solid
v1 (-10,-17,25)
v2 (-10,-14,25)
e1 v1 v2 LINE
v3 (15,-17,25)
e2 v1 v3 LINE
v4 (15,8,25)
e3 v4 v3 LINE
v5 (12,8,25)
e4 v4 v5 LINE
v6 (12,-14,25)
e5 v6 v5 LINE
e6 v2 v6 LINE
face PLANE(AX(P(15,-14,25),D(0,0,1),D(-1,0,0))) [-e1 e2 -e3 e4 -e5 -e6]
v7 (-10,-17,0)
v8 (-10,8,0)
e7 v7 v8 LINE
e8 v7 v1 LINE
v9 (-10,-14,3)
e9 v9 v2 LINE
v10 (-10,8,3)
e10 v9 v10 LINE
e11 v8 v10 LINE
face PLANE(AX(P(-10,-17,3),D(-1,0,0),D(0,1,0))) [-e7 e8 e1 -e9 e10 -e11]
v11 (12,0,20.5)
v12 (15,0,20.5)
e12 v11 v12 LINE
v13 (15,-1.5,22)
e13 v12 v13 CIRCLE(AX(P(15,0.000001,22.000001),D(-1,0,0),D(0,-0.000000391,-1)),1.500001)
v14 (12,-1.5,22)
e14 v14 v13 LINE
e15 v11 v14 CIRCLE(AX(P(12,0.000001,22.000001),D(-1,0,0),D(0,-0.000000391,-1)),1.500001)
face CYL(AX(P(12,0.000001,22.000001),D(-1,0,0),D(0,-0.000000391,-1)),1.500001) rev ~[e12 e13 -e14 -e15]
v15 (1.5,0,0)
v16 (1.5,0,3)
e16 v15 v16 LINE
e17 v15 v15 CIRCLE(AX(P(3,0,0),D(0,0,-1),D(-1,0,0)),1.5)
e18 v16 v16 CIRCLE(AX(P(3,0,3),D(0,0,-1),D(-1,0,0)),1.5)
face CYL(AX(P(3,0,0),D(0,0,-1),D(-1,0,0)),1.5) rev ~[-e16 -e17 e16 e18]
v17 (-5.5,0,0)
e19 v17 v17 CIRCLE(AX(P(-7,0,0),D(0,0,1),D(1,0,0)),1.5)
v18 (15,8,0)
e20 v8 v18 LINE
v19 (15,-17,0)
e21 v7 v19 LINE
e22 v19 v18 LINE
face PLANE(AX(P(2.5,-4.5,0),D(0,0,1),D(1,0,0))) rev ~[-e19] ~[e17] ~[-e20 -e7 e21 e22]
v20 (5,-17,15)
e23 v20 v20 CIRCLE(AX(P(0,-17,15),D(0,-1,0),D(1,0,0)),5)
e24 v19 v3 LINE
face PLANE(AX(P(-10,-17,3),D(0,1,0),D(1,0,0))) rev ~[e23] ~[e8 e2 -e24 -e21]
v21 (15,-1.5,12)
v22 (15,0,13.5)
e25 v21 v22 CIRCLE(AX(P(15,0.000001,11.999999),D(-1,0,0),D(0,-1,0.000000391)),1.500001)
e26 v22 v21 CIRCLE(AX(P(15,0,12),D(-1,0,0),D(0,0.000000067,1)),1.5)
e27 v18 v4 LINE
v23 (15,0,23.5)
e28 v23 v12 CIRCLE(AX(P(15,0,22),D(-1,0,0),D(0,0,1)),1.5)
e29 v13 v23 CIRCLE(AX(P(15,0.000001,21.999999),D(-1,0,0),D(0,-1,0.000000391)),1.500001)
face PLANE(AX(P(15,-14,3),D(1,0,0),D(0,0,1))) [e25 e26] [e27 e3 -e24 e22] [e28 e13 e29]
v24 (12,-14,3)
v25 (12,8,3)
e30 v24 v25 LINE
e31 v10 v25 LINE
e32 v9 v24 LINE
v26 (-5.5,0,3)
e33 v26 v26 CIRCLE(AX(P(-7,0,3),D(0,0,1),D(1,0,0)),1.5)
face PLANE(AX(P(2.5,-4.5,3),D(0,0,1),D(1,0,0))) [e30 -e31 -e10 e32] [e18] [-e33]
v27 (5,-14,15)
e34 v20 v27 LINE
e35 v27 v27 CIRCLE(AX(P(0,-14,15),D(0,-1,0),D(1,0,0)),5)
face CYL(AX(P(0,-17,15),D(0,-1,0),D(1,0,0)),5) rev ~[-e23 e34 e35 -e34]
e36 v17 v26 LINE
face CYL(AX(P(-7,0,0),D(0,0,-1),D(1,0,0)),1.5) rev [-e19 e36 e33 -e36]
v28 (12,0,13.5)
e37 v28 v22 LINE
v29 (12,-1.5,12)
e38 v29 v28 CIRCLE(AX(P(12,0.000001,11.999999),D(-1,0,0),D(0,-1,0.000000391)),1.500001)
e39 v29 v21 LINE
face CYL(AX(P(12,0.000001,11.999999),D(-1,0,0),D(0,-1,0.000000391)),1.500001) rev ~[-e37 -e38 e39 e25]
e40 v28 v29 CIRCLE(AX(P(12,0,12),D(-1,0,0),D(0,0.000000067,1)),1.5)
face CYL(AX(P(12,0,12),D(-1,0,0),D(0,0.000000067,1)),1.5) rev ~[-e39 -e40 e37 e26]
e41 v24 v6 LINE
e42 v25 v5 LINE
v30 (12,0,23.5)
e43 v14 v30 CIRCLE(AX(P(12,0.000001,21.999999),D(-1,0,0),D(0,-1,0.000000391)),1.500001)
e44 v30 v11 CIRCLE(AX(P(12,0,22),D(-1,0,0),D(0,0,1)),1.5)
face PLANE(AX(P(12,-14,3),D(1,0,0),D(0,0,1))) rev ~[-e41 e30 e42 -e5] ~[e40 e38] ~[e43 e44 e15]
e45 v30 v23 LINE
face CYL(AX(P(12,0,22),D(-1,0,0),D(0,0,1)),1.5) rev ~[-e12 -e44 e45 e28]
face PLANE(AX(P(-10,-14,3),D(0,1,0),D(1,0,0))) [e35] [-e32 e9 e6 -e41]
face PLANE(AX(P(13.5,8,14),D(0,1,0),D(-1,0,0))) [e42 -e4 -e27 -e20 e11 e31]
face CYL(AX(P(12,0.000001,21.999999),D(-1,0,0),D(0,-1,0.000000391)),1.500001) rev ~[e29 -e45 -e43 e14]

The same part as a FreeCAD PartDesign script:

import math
import FreeCAD as App
import Part
import Sketcher
from FreeCAD import Vector

doc = App.newDocument("Part")
body = doc.addObject("PartDesign::Body", "Body")

# Sketch on XY plane
sketch1 = body.newObject("Sketcher::SketchObject", "Sketch")
sketch1.AttachmentSupport = (doc.getObject("XY_Plane"), [""])
sketch1.MapMode = "FlatFace"
sketch1.addGeometry(Part.LineSegment(Vector(-10, 8, 0), Vector(-10, -17, 0)), False)
sketch1.addGeometry(Part.LineSegment(Vector(-10, -17, 0), Vector(15, -17, 0)), False)
sketch1.addGeometry(Part.LineSegment(Vector(15, -17, 0), Vector(15, 8, 0)), False)
sketch1.addGeometry(Part.LineSegment(Vector(15, 8, 0), Vector(-10, 8, 0)), False)
sketch1.addGeometry(Part.Circle(Vector(-7, 0, 0), Vector(0, 0, 1), 1.5), False)
sketch1.addGeometry(Part.Circle(Vector(3, 0, 0), Vector(0, 0, 1), 1.5), False)
sketch1.addConstraint(Sketcher.Constraint("Coincident", 0, 2, 1, 1))
sketch1.addConstraint(Sketcher.Constraint("Coincident", 1, 2, 2, 1))
sketch1.addConstraint(Sketcher.Constraint("Coincident", 2, 2, 3, 1))
sketch1.addConstraint(Sketcher.Constraint("Coincident", 3, 2, 0, 1))
sketch1.addConstraint(Sketcher.Constraint("Vertical", 0))
sketch1.addConstraint(Sketcher.Constraint("Horizontal", 1))
sketch1.addConstraint(Sketcher.Constraint("Vertical", 2))
sketch1.addConstraint(Sketcher.Constraint("Horizontal", 3))
sketch1.addConstraint(Sketcher.Constraint("Equal", 4, 5))
sketch1.addConstraint(Sketcher.Constraint("PointOnObject", 4, 3, -1))
sketch1.addConstraint(Sketcher.Constraint("PointOnObject", 5, 3, -1))
sketch1.addConstraint(Sketcher.Constraint("Equal", 3, 0))
sketch1.addConstraint(Sketcher.Constraint("Diameter", 4, 3.0))
sketch1.addConstraint(Sketcher.Constraint("DistanceX", 1, 1, 1, 2, 25.0))
sketch1.addConstraint(Sketcher.Constraint("DistanceX", 4, 3, -1, 1, 7.0))
sketch1.addConstraint(Sketcher.Constraint("DistanceX", -1, 1, 5, 3, 3.0))
sketch1.addConstraint(Sketcher.Constraint("DistanceX", 0, 2, -1, 1, 10.0))
sketch1.addConstraint(Sketcher.Constraint("DistanceY", 0, 2, -1, 1, 17.0))
pad1 = body.newObject("PartDesign::Pad", "Pad")
pad1.Profile = sketch1
pad1.Length = 3

# Sketch on XY plane
sketch2 = body.newObject("Sketcher::SketchObject", "Sketch001")
sketch2.AttachmentSupport = (doc.getObject("XY_Plane"), [""])
sketch2.MapMode = "FlatFace"
sketch2.addGeometry(Part.LineSegment(Vector(-10, 8, 0), Vector(-10, -17, 0)), False)
sketch2.addGeometry(Part.LineSegment(Vector(-10, -17, 0), Vector(15, -17, 0)), False)
sketch2.addGeometry(Part.LineSegment(Vector(15, -17, 0), Vector(15, 8, 0)), False)
sketch2.addGeometry(Part.LineSegment(Vector(15, 8, 0), Vector(-10, 8, 0)), False)
sketch2.addGeometry(Part.Circle(Vector(-7, 0, 0), Vector(0, 0, 1), 1.5), False)
sketch2.addGeometry(Part.Circle(Vector(3, 0, 0), Vector(0, 0, 1), 1.5), False)
sketch2.addConstraint(Sketcher.Constraint("Coincident", 0, 2, 1, 1))
sketch2.addConstraint(Sketcher.Constraint("Coincident", 1, 2, 2, 1))
sketch2.addConstraint(Sketcher.Constraint("Coincident", 2, 2, 3, 1))
sketch2.addConstraint(Sketcher.Constraint("Coincident", 3, 2, 0, 1))
sketch2.addConstraint(Sketcher.Constraint("Vertical", 0))
sketch2.addConstraint(Sketcher.Constraint("Horizontal", 1))
sketch2.addConstraint(Sketcher.Constraint("Vertical", 2))
sketch2.addConstraint(Sketcher.Constraint("Horizontal", 3))
sketch2.addConstraint(Sketcher.Constraint("Equal", 4, 5))
sketch2.addConstraint(Sketcher.Constraint("PointOnObject", 4, 3, -1))
sketch2.addConstraint(Sketcher.Constraint("PointOnObject", 5, 3, -1))
sketch2.addConstraint(Sketcher.Constraint("Equal", 3, 0))
sketch2.addConstraint(Sketcher.Constraint("Diameter", 4, 3.0))
sketch2.addConstraint(Sketcher.Constraint("DistanceX", 1, 1, 1, 2, 25.0))
sketch2.addConstraint(Sketcher.Constraint("DistanceX", 4, 3, -1, 1, 7.0))
sketch2.addConstraint(Sketcher.Constraint("DistanceX", -1, 1, 5, 3, 3.0))
sketch2.addConstraint(Sketcher.Constraint("DistanceX", 0, 2, -1, 1, 10.0))
sketch2.addConstraint(Sketcher.Constraint("DistanceY", 0, 2, -1, 1, 17.0))
pad2 = body.newObject("PartDesign::Pad", "Pad001")
pad2.Profile = sketch2
pad2.Length = 3

# Sketch on XY plane
sketch3 = body.newObject("Sketcher::SketchObject", "Sketch002")
sketch3.AttachmentSupport = (doc.getObject("XY_Plane"), [""])
sketch3.MapMode = "FlatFace"
sketch3.AttachmentOffset = App.Placement(Vector(0, 0, 3), App.Rotation())
sketch3.addGeometry(Part.LineSegment(Vector(-10, -14, 0), Vector(-10, -17, 0)), False)
sketch3.addGeometry(Part.LineSegment(Vector(-10, -17, 0), Vector(15, -17, 0)), False)
sketch3.addGeometry(Part.LineSegment(Vector(15, -17, 0), Vector(15, -14, 0)), False)
sketch3.addGeometry(Part.LineSegment(Vector(15, -14, 0), Vector(-10, -14, 0)), False)
sketch3.addConstraint(Sketcher.Constraint("Coincident", 0, 2, 1, 1))
sketch3.addConstraint(Sketcher.Constraint("Coincident", 1, 2, 2, 1))
sketch3.addConstraint(Sketcher.Constraint("Coincident", 2, 2, 3, 1))
sketch3.addConstraint(Sketcher.Constraint("Coincident", 3, 2, 0, 1))
sketch3.addConstraint(Sketcher.Constraint("Vertical", 0))
sketch3.addConstraint(Sketcher.Constraint("Horizontal", 1))
sketch3.addConstraint(Sketcher.Constraint("Vertical", 2))
sketch3.addConstraint(Sketcher.Constraint("Horizontal", 3))
sketch3.addConstraint(Sketcher.Constraint("DistanceX", 1, 1, 1, 2, 25.0))
sketch3.addConstraint(Sketcher.Constraint("DistanceY", 0, 2, 0, 1, 3.0))
sketch3.addConstraint(Sketcher.Constraint("DistanceX", 0, 2, -1, 1, 10.0))
sketch3.addConstraint(Sketcher.Constraint("DistanceY", 0, 2, -1, 1, 17.0))
pad3 = body.newObject("PartDesign::Pad", "Pad002")
pad3.Profile = sketch3
pad3.Length = 22

# Sketch on XZ plane
sketch4 = body.newObject("Sketcher::SketchObject", "Sketch003")
sketch4.AttachmentSupport = (doc.getObject("XZ_Plane"), [""])
sketch4.MapMode = "FlatFace"
sketch4.AttachmentOffset = App.Placement(Vector(0, 0, 14), App.Rotation())
sketch4.addGeometry(Part.LineSegment(Vector(15, 25, 0), Vector(15, 3, 0)), False)
sketch4.addGeometry(Part.LineSegment(Vector(15, 3, 0), Vector(12, 3, 0)), False)
sketch4.addGeometry(Part.LineSegment(Vector(12, 3, 0), Vector(12, 25, 0)), False)
sketch4.addGeometry(Part.LineSegment(Vector(12, 25, 0), Vector(15, 25, 0)), False)
sketch4.addConstraint(Sketcher.Constraint("Coincident", 0, 2, 1, 1))
sketch4.addConstraint(Sketcher.Constraint("Coincident", 1, 2, 2, 1))
sketch4.addConstraint(Sketcher.Constraint("Coincident", 2, 2, 3, 1))
sketch4.addConstraint(Sketcher.Constraint("Coincident", 3, 2, 0, 1))
sketch4.addConstraint(Sketcher.Constraint("Vertical", 0))
sketch4.addConstraint(Sketcher.Constraint("Horizontal", 1))
sketch4.addConstraint(Sketcher.Constraint("Vertical", 2))
sketch4.addConstraint(Sketcher.Constraint("Horizontal", 3))
sketch4.addConstraint(Sketcher.Constraint("DistanceX", 1, 2, 1, 1, 3.0))
sketch4.addConstraint(Sketcher.Constraint("DistanceY", 0, 2, 0, 1, 22.0))
sketch4.addConstraint(Sketcher.Constraint("DistanceX", -1, 1, 0, 2, 15.0))
sketch4.addConstraint(Sketcher.Constraint("DistanceY", -1, 1, 0, 2, 3.0))
pad4 = body.newObject("PartDesign::Pad", "Pad003")
pad4.Profile = sketch4
pad4.Length = 22
pad4.Reversed = True

# Sketch on YZ plane
sketch5 = body.newObject("Sketcher::SketchObject", "Sketch004")
sketch5.AttachmentSupport = (doc.getObject("YZ_Plane"), [""])
sketch5.MapMode = "FlatFace"
sketch5.AttachmentOffset = App.Placement(Vector(0, 0, 12), App.Rotation())
sketch5.addGeometry(Part.ArcOfCircle(Part.Circle(Vector(0, 12, 0), Vector(0, 0, 1), 1.5), math.radians(90), math.radians(180)), False)
sketch5.addGeometry(Part.ArcOfCircle(Part.Circle(Vector(0, 12, 0), Vector(0, 0, 1), 1.5), math.radians(-180), math.radians(90)), False)
sketch5.addGeometry(Part.ArcOfCircle(Part.Circle(Vector(0, 22, 0), Vector(0, 0, 1), 1.5), math.radians(-90), math.radians(90)), False)
sketch5.addGeometry(Part.ArcOfCircle(Part.Circle(Vector(0, 22, 0), Vector(0, 0, 1), 1.5), math.radians(-180), math.radians(-90)), False)
sketch5.addGeometry(Part.ArcOfCircle(Part.Circle(Vector(0, 22, 0), Vector(0, 0, 1), 1.5), math.radians(90), math.radians(180)), False)
sketch5.addConstraint(Sketcher.Constraint("Tangent", 0, 1, 1, 2))
sketch5.addConstraint(Sketcher.Constraint("Coincident", 1, 1, 0, 2))
sketch5.addConstraint(Sketcher.Constraint("Tangent", 2, 1, 3, 2))
sketch5.addConstraint(Sketcher.Constraint("Tangent", 3, 1, 4, 2))
sketch5.addConstraint(Sketcher.Constraint("Tangent", 4, 1, 2, 2))
sketch5.addConstraint(Sketcher.Constraint("Equal", 1, 2))
sketch5.addConstraint(Sketcher.Constraint("PointOnObject", 0, 3, -2))
sketch5.addConstraint(Sketcher.Constraint("PointOnObject", 2, 3, -2))
sketch5.addConstraint(Sketcher.Constraint("PointOnObject", 0, 1, -2))
sketch5.addConstraint(Sketcher.Constraint("PointOnObject", 2, 1, -2))
sketch5.addConstraint(Sketcher.Constraint("PointOnObject", 4, 1, -2))
sketch5.addConstraint(Sketcher.Constraint("Horizontal", 0, 3, 1, 1))
sketch5.addConstraint(Sketcher.Constraint("Horizontal", 4, 3, 3, 1))
sketch5.addConstraint(Sketcher.Constraint("Radius", 0, 1.500001))
sketch5.addConstraint(Sketcher.Constraint("DistanceY", -1, 1, 0, 3, 11.999999))
sketch5.addConstraint(Sketcher.Constraint("DistanceY", -1, 1, 2, 3, 22.0))
pocket1 = body.newObject("PartDesign::Pocket", "Pocket")
pocket1.Profile = sketch5
pocket1.Length = 25
pocket1.Reversed = True

# Sketch on XZ plane
sketch6 = body.newObject("Sketcher::SketchObject", "Sketch005")
sketch6.AttachmentSupport = (doc.getObject("XZ_Plane"), [""])
sketch6.MapMode = "FlatFace"
sketch6.AttachmentOffset = App.Placement(Vector(0, 0, 17), App.Rotation())
sketch6.addGeometry(Part.Circle(Vector(0, 15, 0), Vector(0, 0, 1), 5), False)
sketch6.addConstraint(Sketcher.Constraint("PointOnObject", 0, 3, -2))
sketch6.addConstraint(Sketcher.Constraint("Diameter", 0, 10.0))
sketch6.addConstraint(Sketcher.Constraint("DistanceY", -1, 1, 0, 3, 15.0))
pocket2 = body.newObject("PartDesign::Pocket", "Pocket001")
pocket2.Profile = sketch6
pocket2.Length = 25

doc.recompute()
